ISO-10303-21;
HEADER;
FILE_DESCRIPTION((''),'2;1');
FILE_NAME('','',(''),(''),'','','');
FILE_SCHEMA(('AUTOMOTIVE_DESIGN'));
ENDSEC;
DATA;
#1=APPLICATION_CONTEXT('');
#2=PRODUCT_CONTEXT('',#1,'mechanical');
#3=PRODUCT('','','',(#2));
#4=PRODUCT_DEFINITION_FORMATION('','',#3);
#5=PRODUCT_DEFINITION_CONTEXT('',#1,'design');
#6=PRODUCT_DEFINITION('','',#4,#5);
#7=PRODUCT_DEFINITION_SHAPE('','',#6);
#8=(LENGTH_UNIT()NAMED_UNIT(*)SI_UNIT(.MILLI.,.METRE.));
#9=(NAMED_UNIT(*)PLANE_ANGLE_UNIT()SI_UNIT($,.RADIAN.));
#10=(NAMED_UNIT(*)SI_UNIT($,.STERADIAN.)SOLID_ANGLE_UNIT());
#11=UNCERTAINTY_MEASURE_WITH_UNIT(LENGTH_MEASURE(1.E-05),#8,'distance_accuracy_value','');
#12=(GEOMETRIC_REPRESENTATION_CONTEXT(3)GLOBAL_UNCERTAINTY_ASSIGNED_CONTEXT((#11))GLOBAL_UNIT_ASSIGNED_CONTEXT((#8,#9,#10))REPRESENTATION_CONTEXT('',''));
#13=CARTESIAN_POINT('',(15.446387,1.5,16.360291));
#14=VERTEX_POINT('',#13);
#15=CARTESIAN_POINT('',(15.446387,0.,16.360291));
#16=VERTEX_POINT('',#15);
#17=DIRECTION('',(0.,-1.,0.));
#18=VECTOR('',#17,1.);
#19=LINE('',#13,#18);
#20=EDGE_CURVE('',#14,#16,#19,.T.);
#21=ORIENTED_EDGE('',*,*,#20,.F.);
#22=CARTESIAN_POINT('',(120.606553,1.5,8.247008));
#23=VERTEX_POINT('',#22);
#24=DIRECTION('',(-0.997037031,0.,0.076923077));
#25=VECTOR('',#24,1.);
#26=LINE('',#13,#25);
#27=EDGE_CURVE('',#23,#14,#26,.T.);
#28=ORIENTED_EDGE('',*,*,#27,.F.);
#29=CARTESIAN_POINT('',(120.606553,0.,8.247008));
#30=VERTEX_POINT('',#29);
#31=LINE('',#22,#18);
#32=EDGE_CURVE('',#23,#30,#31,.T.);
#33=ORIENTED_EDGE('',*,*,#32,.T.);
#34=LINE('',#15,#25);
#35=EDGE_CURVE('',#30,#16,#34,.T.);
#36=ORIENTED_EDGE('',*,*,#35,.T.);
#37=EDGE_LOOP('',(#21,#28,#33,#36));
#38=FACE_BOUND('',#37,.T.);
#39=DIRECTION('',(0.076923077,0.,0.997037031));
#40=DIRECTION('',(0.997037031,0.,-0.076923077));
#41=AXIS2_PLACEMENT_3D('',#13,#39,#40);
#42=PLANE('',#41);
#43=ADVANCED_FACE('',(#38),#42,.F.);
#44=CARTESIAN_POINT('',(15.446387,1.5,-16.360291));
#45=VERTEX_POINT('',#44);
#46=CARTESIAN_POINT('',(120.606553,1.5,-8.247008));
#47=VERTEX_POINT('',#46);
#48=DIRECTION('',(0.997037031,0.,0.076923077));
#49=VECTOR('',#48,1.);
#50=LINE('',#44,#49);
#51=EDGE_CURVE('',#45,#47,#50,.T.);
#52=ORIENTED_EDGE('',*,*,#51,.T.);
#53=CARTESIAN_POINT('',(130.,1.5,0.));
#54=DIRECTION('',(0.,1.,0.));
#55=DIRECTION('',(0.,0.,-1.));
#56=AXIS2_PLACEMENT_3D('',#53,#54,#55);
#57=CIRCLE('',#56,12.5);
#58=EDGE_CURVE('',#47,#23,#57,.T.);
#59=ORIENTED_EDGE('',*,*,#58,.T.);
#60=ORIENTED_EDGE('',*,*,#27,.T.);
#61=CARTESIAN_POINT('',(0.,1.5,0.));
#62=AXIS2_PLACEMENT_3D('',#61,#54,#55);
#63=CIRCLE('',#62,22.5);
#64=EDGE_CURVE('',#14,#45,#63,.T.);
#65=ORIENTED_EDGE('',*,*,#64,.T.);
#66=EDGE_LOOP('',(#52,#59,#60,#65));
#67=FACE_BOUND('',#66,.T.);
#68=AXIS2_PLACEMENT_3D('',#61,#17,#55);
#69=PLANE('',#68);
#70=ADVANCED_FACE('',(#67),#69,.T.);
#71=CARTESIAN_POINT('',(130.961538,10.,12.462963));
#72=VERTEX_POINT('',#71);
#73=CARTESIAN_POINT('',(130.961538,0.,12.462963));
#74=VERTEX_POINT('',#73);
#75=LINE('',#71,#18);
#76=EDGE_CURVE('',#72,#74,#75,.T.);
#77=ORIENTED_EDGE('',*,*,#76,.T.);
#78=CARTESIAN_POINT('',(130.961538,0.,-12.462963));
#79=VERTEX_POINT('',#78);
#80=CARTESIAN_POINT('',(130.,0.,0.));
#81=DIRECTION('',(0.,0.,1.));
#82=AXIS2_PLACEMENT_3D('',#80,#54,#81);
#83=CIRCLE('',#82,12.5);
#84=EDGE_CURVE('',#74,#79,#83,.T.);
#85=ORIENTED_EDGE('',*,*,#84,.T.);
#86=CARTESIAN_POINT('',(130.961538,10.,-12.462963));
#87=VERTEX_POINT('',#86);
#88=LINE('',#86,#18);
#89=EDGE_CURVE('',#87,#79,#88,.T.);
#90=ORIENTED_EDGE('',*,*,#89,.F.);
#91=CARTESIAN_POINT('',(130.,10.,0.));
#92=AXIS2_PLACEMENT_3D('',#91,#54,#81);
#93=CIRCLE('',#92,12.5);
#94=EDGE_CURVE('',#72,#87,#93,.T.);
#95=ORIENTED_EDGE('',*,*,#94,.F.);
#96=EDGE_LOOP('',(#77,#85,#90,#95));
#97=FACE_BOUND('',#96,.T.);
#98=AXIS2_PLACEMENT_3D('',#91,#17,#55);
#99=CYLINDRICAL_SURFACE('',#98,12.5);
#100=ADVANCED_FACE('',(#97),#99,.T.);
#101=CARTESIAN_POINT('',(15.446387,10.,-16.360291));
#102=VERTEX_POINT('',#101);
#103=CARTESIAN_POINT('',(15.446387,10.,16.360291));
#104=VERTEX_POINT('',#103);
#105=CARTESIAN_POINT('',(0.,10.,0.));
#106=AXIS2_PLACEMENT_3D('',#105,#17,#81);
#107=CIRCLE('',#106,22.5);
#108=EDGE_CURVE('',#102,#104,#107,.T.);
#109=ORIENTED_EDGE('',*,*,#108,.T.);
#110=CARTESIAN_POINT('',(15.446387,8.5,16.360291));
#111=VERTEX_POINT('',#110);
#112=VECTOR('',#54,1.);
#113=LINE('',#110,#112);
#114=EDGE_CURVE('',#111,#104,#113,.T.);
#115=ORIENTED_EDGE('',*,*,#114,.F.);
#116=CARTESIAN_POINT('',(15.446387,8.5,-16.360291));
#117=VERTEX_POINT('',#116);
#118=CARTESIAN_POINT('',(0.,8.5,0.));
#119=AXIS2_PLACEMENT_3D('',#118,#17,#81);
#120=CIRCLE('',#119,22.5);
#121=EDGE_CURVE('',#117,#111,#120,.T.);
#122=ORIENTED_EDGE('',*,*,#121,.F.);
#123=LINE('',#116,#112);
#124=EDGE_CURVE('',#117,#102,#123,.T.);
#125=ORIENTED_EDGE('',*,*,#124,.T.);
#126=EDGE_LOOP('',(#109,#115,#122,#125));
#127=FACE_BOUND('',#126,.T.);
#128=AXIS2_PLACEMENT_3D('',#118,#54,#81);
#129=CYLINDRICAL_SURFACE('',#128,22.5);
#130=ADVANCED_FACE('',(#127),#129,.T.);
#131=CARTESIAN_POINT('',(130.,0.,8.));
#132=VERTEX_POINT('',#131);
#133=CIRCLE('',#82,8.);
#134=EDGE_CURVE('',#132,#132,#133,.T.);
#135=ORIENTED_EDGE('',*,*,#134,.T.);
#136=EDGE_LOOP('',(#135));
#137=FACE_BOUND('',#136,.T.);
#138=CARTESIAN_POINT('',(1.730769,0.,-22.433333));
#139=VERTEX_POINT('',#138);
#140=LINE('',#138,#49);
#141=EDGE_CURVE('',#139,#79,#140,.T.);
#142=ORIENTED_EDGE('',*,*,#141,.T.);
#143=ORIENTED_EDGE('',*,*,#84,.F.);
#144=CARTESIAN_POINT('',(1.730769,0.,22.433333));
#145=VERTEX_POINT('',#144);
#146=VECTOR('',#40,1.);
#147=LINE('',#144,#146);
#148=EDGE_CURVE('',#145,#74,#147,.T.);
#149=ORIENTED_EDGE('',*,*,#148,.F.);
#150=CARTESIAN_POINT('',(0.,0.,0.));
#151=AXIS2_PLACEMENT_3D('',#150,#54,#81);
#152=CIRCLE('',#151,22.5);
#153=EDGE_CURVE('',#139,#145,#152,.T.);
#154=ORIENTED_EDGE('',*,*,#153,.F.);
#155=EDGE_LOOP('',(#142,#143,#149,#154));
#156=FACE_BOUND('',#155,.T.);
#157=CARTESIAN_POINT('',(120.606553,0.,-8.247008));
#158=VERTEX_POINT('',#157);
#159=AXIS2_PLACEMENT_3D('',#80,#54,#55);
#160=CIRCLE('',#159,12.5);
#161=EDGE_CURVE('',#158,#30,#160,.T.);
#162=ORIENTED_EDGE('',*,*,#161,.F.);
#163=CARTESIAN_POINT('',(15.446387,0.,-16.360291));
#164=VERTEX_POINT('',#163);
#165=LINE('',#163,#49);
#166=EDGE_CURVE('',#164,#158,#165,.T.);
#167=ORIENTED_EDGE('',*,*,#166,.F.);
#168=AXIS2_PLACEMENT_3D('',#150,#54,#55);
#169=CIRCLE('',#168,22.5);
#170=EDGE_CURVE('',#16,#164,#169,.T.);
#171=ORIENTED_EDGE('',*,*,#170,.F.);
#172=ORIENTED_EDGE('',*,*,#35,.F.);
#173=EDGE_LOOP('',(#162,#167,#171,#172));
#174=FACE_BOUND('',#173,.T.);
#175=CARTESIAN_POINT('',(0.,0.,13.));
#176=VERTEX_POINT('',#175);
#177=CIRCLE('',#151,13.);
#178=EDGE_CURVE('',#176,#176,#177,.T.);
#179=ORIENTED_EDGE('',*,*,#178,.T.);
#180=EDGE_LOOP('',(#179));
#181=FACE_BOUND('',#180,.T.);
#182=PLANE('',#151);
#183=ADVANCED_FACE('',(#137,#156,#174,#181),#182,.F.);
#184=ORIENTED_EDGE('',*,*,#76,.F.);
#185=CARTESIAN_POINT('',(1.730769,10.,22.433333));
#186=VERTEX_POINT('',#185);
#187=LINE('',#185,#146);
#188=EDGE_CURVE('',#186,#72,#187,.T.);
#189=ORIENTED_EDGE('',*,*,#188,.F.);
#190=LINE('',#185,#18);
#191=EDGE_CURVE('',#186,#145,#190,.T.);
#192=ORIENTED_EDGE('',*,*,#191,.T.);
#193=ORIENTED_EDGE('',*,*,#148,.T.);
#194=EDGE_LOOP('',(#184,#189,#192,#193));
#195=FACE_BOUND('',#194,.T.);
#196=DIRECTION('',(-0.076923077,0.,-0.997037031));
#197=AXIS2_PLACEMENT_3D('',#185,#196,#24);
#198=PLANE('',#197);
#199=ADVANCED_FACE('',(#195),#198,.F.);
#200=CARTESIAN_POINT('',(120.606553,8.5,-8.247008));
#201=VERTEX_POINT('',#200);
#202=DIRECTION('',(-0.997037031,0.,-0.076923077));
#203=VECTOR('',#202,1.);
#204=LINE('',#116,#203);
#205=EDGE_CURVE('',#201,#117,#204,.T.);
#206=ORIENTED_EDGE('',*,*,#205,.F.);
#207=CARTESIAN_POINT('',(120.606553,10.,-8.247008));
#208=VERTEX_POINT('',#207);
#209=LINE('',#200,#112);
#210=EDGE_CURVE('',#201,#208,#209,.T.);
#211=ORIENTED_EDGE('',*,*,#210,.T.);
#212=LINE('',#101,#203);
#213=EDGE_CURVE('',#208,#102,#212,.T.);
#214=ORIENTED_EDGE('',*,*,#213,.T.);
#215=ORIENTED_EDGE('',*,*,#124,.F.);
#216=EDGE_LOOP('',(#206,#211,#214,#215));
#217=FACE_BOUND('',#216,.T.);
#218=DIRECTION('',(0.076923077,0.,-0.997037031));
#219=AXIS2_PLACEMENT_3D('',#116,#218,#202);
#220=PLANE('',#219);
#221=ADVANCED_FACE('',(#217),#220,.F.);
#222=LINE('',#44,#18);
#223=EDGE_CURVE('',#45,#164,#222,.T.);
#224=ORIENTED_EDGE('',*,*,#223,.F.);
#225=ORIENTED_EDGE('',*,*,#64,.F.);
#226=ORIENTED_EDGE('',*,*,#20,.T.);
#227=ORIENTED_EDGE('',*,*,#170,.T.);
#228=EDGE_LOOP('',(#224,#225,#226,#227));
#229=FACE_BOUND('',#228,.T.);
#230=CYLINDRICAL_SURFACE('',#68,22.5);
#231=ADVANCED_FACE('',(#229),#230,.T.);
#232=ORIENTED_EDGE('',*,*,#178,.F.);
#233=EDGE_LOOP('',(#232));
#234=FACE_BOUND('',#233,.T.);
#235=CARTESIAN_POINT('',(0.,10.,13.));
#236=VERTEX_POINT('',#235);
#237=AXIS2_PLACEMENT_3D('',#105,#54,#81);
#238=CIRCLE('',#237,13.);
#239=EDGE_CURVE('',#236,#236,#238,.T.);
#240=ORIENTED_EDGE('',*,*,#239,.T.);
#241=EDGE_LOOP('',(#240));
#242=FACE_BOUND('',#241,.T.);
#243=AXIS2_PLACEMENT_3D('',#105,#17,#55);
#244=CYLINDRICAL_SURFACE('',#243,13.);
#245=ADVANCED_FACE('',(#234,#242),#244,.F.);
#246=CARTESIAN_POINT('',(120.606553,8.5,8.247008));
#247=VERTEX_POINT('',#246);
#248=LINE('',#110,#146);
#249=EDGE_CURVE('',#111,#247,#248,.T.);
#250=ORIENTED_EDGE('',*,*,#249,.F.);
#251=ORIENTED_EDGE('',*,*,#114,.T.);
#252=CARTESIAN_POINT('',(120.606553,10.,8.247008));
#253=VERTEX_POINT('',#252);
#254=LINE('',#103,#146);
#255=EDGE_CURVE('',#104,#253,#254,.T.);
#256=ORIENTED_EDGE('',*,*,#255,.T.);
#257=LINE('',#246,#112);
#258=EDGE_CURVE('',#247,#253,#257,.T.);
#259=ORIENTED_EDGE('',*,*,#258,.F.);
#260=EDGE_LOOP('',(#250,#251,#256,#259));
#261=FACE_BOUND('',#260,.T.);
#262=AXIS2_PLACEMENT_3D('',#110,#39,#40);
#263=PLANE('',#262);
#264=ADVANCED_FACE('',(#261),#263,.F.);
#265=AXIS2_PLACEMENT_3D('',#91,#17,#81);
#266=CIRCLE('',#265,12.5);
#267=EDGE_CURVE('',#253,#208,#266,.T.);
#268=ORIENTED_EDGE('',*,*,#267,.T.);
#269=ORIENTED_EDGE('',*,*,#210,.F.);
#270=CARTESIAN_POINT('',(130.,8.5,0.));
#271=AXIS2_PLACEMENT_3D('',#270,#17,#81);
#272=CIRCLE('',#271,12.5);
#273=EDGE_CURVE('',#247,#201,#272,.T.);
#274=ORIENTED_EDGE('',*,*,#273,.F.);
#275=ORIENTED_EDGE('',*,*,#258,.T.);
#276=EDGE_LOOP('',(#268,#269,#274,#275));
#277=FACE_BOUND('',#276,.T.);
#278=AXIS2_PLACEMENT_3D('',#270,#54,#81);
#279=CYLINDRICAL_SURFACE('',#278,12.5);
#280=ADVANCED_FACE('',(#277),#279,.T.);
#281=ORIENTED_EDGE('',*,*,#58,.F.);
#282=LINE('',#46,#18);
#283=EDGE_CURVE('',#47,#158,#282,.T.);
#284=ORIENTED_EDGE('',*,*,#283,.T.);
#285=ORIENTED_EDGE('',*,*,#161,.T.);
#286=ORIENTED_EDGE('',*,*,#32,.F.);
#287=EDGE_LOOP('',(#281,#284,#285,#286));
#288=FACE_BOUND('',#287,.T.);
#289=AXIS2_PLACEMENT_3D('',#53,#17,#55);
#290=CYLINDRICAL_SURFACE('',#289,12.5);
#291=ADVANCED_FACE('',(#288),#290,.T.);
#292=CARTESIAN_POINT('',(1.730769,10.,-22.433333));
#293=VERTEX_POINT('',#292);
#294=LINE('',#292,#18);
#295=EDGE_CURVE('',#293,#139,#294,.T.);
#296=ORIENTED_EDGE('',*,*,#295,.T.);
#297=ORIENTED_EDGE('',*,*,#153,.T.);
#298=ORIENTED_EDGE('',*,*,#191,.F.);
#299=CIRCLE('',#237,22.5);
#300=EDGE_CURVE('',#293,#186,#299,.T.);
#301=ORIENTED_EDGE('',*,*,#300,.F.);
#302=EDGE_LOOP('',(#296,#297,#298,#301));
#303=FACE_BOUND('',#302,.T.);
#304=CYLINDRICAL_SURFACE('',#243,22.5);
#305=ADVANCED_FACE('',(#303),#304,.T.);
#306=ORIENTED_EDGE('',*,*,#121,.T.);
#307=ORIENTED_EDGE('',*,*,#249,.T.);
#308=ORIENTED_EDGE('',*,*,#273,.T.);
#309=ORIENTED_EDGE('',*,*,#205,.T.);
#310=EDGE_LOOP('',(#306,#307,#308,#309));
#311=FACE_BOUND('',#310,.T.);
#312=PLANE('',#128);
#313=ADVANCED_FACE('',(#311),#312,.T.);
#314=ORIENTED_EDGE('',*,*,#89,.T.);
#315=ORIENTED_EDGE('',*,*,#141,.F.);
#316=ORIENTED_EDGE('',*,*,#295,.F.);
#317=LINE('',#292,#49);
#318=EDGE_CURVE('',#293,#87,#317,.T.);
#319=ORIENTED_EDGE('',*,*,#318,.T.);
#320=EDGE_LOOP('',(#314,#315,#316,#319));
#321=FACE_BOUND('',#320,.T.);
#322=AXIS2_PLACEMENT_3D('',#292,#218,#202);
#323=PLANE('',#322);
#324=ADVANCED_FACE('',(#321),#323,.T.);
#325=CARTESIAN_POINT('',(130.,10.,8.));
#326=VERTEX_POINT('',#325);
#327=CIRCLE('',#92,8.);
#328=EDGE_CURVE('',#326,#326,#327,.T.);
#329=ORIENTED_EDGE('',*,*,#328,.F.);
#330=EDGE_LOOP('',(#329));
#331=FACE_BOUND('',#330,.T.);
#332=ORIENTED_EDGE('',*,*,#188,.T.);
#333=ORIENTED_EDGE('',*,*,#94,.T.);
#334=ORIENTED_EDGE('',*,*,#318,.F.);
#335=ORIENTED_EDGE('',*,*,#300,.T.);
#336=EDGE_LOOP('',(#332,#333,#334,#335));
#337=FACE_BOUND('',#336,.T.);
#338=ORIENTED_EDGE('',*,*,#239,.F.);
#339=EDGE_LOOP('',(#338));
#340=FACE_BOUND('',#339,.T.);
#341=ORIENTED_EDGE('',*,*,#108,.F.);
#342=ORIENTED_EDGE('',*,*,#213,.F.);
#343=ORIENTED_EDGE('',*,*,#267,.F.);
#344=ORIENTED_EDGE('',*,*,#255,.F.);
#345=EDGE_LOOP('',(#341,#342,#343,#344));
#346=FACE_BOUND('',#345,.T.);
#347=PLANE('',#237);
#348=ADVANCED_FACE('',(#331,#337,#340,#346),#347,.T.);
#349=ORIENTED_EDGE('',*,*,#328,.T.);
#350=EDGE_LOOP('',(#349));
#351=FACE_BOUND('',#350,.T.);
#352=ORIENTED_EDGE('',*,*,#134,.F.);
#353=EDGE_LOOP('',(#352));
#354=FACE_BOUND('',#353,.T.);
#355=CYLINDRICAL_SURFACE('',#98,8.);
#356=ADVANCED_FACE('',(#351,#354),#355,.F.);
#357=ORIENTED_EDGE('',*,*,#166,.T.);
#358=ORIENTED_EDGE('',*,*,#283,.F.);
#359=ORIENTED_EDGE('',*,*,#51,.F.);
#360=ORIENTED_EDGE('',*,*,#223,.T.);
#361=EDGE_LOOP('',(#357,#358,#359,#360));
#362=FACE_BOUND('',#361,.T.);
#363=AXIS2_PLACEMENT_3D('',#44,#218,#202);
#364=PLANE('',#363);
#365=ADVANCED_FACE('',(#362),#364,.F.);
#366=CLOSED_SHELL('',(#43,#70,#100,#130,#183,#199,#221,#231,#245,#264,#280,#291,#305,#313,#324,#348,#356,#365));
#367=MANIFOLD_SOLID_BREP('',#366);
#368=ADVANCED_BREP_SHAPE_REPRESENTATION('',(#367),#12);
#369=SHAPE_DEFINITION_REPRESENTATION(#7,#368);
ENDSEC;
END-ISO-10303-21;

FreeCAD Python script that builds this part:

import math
import FreeCAD as App
import Part
import Sketcher

V = App.Vector

doc = App.newDocument("Part")
body = doc.addObject("PartDesign::Body", "Body")

# Sketch on XZ plane
sketch1 = doc.addObject("Sketcher::SketchObject", "Sketch")
body.addObject(sketch1)
sketch1.AttachmentSupport = (doc.XZ_Plane, [""])
sketch1.MapMode = "FlatFace"
sketch1.addGeometry(Part.ArcOfCircle(Part.Circle(V(0, 0, 0), V(0, 0, 1), 22), math.radians(86), math.radians(274)), False)
sketch1.addGeometry(Part.LineSegment(V(2, 22, 0), V(131, 12, 0)), False)
sketch1.addGeometry(Part.ArcOfCircle(Part.Circle(V(130, 0, 0), V(0, 0, 1), 13), math.radians(-86), math.radians(86)), False)
sketch1.addGeometry(Part.LineSegment(V(131, -12, 0), V(2, -22, 0)), False)
sketch1.addGeometry(Part.Circle(V(0, 0, 0), V(0, 0, 1), 13), False)
sketch1.addGeometry(Part.Circle(V(130, 0, 0), V(0, 0, 1), 8), False)
sketch1.addConstraint(Sketcher.Constraint("Tangent", 0, 1, 1, 1))
sketch1.addConstraint(Sketcher.Constraint("Tangent", 1, 2, 2, 2))
sketch1.addConstraint(Sketcher.Constraint("Tangent", 2, 1, 3, 1))
sketch1.addConstraint(Sketcher.Constraint("Tangent", 3, 2, 0, 2))
sketch1.addConstraint(Sketcher.Constraint("Coincident", 0, 3, -1, 1))
sketch1.addConstraint(Sketcher.Constraint("Coincident", 4, 3, -1, 1))
sketch1.addConstraint(Sketcher.Constraint("Coincident", 5, 3, 2, 3))
sketch1.addConstraint(Sketcher.Constraint("PointOnObject", 2, 3, -1))
sketch1.addConstraint(Sketcher.Constraint("Diameter", 4, 26.0))
sketch1.addConstraint(Sketcher.Constraint("Diameter", 5, 16.0))
sketch1.addConstraint(Sketcher.Constraint("Radius", 0, 22.5))
sketch1.addConstraint(Sketcher.Constraint("Radius", 2, 12.5))
sketch1.addConstraint(Sketcher.Constraint("DistanceX", -1, 1, 2, 3, 130.0))
pad1 = doc.addObject("PartDesign::Pad", "Pad")
body.addObject(pad1)
pad1.Profile = sketch1
pad1.Length = 10
pad1.Reversed = True

# Sketch on XZ plane
sketch2 = doc.addObject("Sketcher::SketchObject", "Sketch001")
body.addObject(sketch2)
sketch2.AttachmentSupport = (doc.XZ_Plane, [""])
sketch2.MapMode = "FlatFace"
sketch2.AttachmentOffset = App.Placement(V(0, 0, -8.5), App.Rotation())
sketch2.addGeometry(Part.LineSegment(V(121, -8, 0), V(15, -16, 0)), False)
sketch2.addGeometry(Part.ArcOfCircle(Part.Circle(V(0, 0, 0), V(0, 0, 1), 23), math.radians(-47), math.radians(47)), False)
sketch2.addGeometry(Part.LineSegment(V(15, 16, 0), V(121, 8, 0)), False)
sketch2.addGeometry(Part.ArcOfCircle(Part.Circle(V(130, 0, 0), V(0, 0, 1), 12), math.radians(139), math.radians(221)), False)
sketch2.addConstraint(Sketcher.Constraint("Coincident", 0, 2, 1, 1))
sketch2.addConstraint(Sketcher.Constraint("Coincident", 1, 2, 2, 1))
sketch2.addConstraint(Sketcher.Constraint("Coincident", 2, 2, 3, 1))
sketch2.addConstraint(Sketcher.Constraint("Coincident", 3, 2, 0, 1))
sketch2.addConstraint(Sketcher.Constraint("Coincident", 1, 3, -1, 1))
sketch2.addConstraint(Sketcher.Constraint("Symmetric", 2, 2, 3, 2, -1))
sketch2.addConstraint(Sketcher.Constraint("Vertical", 0, 2, 1, 2))
sketch2.addConstraint(Sketcher.Constraint("Radius", 1, 22.5))
sketch2.addConstraint(Sketcher.Constraint("Radius", 3, 12.5))
sketch2.addConstraint(Sketcher.Constraint("DistanceX", -1, 1, 3, 3, 130.0))
sketch2.addConstraint(Sketcher.Constraint("DistanceY", 0, 2, 2, 2, 24.6073))
sketch2.addConstraint(Sketcher.Constraint("Distance", 0, 105.472678))
pocket1 = doc.addObject("PartDesign::Pocket", "Pocket")
body.addObject(pocket1)
pocket1.Profile = sketch2
pocket1.Length = 1.5

# Sketch on XZ plane
sketch3 = doc.addObject("Sketcher::SketchObject", "Sketch002")
body.addObject(sketch3)
sketch3.AttachmentSupport = (doc.XZ_Plane, [""])
sketch3.MapMode = "FlatFace"
sketch3.addGeometry(Part.LineSegment(V(121, 8, 0), V(15, 16, 0)), False)
sketch3.addGeometry(Part.ArcOfCircle(Part.Circle(V(0, 0, 0), V(0, 0, 1), 23), math.radians(-47), math.radians(47)), False)
sketch3.addGeometry(Part.LineSegment(V(15, -16, 0), V(121, -8, 0)), False)
sketch3.addGeometry(Part.ArcOfCircle(Part.Circle(V(130, 0, 0), V(0, 0, 1), 12), math.radians(139), math.radians(221)), False)
sketch3.addConstraint(Sketcher.Constraint("Coincident", 0, 2, 1, 2))
sketch3.addConstraint(Sketcher.Constraint("Coincident", 1, 1, 2, 1))
sketch3.addConstraint(Sketcher.Constraint("Coincident", 2, 2, 3, 2))
sketch3.addConstraint(Sketcher.Constraint("Coincident", 3, 1, 0, 1))
sketch3.addConstraint(Sketcher.Constraint("Coincident", 1, 3, -1, 1))
sketch3.addConstraint(Sketcher.Constraint("Symmetric", 2, 2, 3, 1, -1))
sketch3.addConstraint(Sketcher.Constraint("Vertical", 0, 2, 1, 1))
sketch3.addConstraint(Sketcher.Constraint("Radius", 1, 22.5))
sketch3.addConstraint(Sketcher.Constraint("Radius", 3, 12.5))
sketch3.addConstraint(Sketcher.Constraint("DistanceX", -1, 1, 3, 3, 130.0))
sketch3.addConstraint(Sketcher.Constraint("DistanceY", 2, 2, 0, 2, 24.6073))
sketch3.addConstraint(Sketcher.Constraint("Distance", 0, 105.472678))
pocket2 = doc.addObject("PartDesign::Pocket", "Pocket001")
body.addObject(pocket2)
pocket2.Profile = sketch3
pocket2.Length = 1.5

doc.recompute()
